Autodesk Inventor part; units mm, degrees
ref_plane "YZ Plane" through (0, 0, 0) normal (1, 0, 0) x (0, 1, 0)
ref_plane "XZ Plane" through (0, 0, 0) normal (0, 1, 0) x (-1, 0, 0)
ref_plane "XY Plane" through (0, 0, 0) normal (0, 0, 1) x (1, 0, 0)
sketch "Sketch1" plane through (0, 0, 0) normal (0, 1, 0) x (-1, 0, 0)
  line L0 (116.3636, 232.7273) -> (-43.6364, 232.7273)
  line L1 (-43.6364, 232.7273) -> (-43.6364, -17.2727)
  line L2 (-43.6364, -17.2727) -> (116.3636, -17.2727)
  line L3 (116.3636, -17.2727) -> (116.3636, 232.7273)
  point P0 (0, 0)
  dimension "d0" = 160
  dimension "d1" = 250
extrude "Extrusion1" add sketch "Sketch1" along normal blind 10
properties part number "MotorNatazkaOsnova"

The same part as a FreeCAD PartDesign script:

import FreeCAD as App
import Part
import Sketcher
from FreeCAD import Vector


def add_polygon(sketch, points):
    """Adds a closed chain of lines whose ends are joined by coincident constraints."""
    first, n = sketch.GeometryCount, len(points)
    for a, b in zip(points, points[1:] + points[:1]):
        sketch.addGeometry(Part.LineSegment(App.Vector(*a, 0), App.Vector(*b, 0)), False)
    for i in range(n):
        sketch.addConstraint(Sketcher.Constraint("Coincident", first + i, 2, first + (i + 1) % n, 1))

doc = App.newDocument("Part")
params = doc.addObject("Spreadsheet::Sheet", "Params")
for row, (alias, value) in enumerate([
    ("sketch1_width", "160 mm"),
    ("sketch1_height", "250 mm"),
    ("pad1_length", "10 mm"),
], start=1):
    params.set(f"A{row}", alias)
    params.set(f"B{row}", "=" + value)
    params.setAlias(f"B{row}", alias)

body = doc.addObject("PartDesign::Body", "Body")

# Sketch on XZ plane
sketch1 = body.newObject("Sketcher::SketchObject", "Sketch")
sketch1.AttachmentSupport = (doc.getObject("XZ_Plane"), [""])
sketch1.MapMode = "FlatFace"
add_polygon(sketch1, [(-116, -17), (-116, 233), (44, 233), (44, -17)])  # lines 0-3
sketch1.addConstraint(Sketcher.Constraint("Vertical", 0))
sketch1.addConstraint(Sketcher.Constraint("Horizontal", 1))
sketch1.addConstraint(Sketcher.Constraint("Vertical", 2))
sketch1.addConstraint(Sketcher.Constraint("Horizontal", 3))
sketch1.addConstraint(Sketcher.Constraint("DistanceX", 1, 1, 1, 2, 160.0))
sketch1.addConstraint(Sketcher.Constraint("DistanceY", 0, 1, 0, 2, 250.0))
sketch1.addConstraint(Sketcher.Constraint("DistanceX", 0, 2, -1, 1, 116.3636))
sketch1.addConstraint(Sketcher.Constraint("DistanceY", -1, 1, 0, 2, 232.7273))
sketch1.setExpression("Constraints[8]", "Params.sketch1_width")
sketch1.setExpression("Constraints[9]", "Params.sketch1_height")
pad1 = body.newObject("PartDesign::Pad", "Pad")
pad1.Profile = sketch1
pad1.setExpression("Length", "Params.pad1_length")
pad1.Reversed = True

doc.recompute()
